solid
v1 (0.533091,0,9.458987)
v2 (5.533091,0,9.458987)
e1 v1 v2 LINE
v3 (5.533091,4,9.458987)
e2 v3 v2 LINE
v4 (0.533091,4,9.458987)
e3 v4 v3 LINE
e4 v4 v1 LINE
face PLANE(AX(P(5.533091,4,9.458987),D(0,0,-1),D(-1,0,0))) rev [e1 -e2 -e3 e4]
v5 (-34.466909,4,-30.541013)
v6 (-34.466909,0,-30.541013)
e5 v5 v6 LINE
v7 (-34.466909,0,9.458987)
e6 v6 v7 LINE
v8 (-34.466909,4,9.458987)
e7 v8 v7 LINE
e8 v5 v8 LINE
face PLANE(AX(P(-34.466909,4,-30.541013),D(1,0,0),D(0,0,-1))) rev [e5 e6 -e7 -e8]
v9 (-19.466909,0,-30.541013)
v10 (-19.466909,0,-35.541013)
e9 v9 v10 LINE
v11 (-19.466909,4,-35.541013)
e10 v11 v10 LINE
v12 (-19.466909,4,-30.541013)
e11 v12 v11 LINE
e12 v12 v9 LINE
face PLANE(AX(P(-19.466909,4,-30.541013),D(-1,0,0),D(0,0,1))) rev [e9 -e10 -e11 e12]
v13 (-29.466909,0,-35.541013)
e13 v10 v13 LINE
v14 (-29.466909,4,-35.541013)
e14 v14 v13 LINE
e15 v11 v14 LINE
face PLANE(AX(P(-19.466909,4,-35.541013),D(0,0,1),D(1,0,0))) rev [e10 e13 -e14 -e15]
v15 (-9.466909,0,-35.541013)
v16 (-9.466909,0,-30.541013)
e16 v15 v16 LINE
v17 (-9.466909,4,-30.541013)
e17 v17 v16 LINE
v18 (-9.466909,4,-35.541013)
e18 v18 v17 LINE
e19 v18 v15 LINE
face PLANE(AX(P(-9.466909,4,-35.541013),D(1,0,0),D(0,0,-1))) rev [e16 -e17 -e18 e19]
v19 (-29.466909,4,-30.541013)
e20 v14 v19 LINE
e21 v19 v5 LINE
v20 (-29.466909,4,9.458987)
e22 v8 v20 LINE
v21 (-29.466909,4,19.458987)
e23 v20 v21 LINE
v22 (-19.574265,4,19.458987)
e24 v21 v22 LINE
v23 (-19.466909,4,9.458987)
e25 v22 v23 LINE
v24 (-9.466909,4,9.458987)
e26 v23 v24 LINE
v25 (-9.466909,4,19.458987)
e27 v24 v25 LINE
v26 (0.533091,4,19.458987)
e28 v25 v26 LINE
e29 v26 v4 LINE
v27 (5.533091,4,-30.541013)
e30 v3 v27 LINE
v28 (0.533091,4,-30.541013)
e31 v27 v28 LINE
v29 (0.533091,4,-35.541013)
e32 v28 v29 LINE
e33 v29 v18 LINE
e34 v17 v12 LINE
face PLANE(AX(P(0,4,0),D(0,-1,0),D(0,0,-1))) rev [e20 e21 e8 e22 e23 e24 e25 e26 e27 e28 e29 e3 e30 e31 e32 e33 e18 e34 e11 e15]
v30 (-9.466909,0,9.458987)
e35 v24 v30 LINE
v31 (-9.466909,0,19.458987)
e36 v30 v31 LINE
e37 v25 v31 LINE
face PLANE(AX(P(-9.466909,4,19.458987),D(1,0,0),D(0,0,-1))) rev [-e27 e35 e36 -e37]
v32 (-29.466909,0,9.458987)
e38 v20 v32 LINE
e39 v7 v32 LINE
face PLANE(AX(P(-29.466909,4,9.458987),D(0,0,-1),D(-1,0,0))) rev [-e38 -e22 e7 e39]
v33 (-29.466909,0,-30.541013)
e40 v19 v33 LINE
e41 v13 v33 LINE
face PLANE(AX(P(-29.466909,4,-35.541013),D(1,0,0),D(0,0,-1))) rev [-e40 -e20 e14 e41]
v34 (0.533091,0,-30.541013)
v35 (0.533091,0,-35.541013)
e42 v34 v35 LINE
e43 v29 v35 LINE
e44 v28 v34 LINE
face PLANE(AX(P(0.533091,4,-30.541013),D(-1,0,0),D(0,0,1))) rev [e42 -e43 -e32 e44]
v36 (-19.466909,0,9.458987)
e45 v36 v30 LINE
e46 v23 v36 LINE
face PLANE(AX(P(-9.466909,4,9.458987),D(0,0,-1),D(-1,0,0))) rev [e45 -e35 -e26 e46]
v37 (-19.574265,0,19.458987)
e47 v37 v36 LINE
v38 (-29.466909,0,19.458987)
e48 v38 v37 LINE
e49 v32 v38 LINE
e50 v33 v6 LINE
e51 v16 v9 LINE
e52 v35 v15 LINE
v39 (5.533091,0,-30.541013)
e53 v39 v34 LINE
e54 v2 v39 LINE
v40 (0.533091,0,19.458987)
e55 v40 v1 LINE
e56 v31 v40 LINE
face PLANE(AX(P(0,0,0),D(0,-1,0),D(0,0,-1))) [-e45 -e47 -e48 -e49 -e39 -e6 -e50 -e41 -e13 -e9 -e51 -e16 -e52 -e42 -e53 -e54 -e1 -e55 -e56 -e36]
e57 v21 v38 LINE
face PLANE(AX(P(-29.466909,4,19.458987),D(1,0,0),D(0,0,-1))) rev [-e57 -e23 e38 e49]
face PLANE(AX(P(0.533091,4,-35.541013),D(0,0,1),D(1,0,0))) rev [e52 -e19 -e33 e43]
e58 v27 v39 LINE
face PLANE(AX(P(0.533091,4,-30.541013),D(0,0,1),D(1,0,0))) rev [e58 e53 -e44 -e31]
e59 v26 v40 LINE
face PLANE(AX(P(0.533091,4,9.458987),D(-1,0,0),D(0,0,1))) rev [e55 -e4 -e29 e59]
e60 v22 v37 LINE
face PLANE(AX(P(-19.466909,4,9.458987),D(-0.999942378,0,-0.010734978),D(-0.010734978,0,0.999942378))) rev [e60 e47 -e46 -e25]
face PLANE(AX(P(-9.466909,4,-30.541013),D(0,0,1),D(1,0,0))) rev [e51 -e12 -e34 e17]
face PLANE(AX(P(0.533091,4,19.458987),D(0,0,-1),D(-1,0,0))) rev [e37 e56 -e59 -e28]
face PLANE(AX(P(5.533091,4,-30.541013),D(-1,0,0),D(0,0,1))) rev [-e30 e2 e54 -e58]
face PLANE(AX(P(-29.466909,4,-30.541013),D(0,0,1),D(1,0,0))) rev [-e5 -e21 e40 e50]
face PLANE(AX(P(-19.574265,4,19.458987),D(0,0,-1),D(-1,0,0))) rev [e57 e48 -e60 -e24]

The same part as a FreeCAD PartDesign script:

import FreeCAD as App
import Part
import Sketcher

V = App.Vector


def add_polygon(sketch, points):
    """Adds a closed chain of lines whose ends are joined by coincident constraints."""
    first, n = sketch.GeometryCount, len(points)
    for a, b in zip(points, points[1:] + points[:1]):
        sketch.addGeometry(Part.LineSegment(App.Vector(*a, 0), App.Vector(*b, 0)), False)
    for i in range(n):
        sketch.addConstraint(Sketcher.Constraint("Coincident", first + i, 2, first + (i + 1) % n, 1))

doc = App.newDocument("Part")
body = doc.addObject("PartDesign::Body", "Body")

sketch1 = body.newObject("Sketcher::SketchObject", "Sketch")
sketch1.AttachmentSupport = (doc.getObject("XZ_Plane"), [""])
sketch1.MapMode = "FlatFace"
add_polygon(sketch1, [(-29.466909, -30.541013), (-34.466909, -30.541013), (-34.466909, 9.458987), (-29.466909, 9.458987), (-29.466909, 19.458987), (-19.574265, 19.458987), (-19.466909, 9.458987), (-9.466909, 9.458987), (-9.466909, 19.458987), (0.533091, 19.458987), (0.533091, 9.458987), (5.533091, 9.458987), (5.533091, -30.541013), (0.533091, -30.541013), (0.533091, -35.541013), (-9.466909, -35.541013), (-9.466909, -30.541013), (-19.466909, -30.541013), (-19.466909, -35.541013), (-29.466909, -35.541013)])
sketch1.addConstraint([
    Sketcher.Constraint("Horizontal", 0),
    Sketcher.Constraint("Vertical", 1),
    Sketcher.Constraint("Horizontal", 2),
    Sketcher.Constraint("Vertical", 3),
    Sketcher.Constraint("Horizontal", 4),
    Sketcher.Constraint("Horizontal", 6),
    Sketcher.Constraint("Vertical", 7),
    Sketcher.Constraint("Horizontal", 8),
    Sketcher.Constraint("Vertical", 9),
    Sketcher.Constraint("Horizontal", 10),
    Sketcher.Constraint("Vertical", 11),
    Sketcher.Constraint("Horizontal", 12),
    Sketcher.Constraint("Vertical", 13),
    Sketcher.Constraint("Horizontal", 14),
    Sketcher.Constraint("Vertical", 15),
    Sketcher.Constraint("Horizontal", 16),
    Sketcher.Constraint("Vertical", 17),
    Sketcher.Constraint("Horizontal", 18),
    Sketcher.Constraint("Vertical", 19),
    Sketcher.Constraint("Horizontal", 2, 2, 5, 2),
    Sketcher.Constraint("Horizontal", 4, 2, 7, 2),
    Sketcher.Constraint("Horizontal", 6, 2, 9, 2),
    Sketcher.Constraint("Horizontal", 0, 2, 11, 2),
    Sketcher.Constraint("Horizontal", 12, 2, 15, 2),
    Sketcher.Constraint("Horizontal", 14, 2, 17, 2),
    Sketcher.Constraint("Vertical", 9, 2, 12, 2),
    Sketcher.Constraint("Vertical", 7, 2, 14, 2),
    Sketcher.Constraint("Vertical", 5, 2, 16, 2),
    Sketcher.Constraint("Vertical", 3, 2, 18, 2),
    Sketcher.Constraint("Equal", 6, 8),
    Sketcher.Constraint("Equal", 2, 10),
    Sketcher.Constraint("Equal", 16, 18),
    Sketcher.Constraint("Equal", 18, 3),
    Sketcher.Constraint("Equal", 12, 13),
    Sketcher.Constraint("DistanceX", 0, 2, 0, 1, 5.0),
    Sketcher.Constraint("DistanceX", 6, 1, 6, 2, 10.0),
    Sketcher.Constraint("DistanceY", 1, 1, 1, 2, 40.0),
    Sketcher.Constraint("DistanceX", 4, 1, 4, 2, 9.892644),
    Sketcher.Constraint("DistanceX", 0, 2, -1, 1, 34.466909),
    Sketcher.Constraint("DistanceY", 0, 2, -1, 1, 30.541013),
])
pad1 = body.newObject("PartDesign::Pad", "Pad")
pad1.Profile = sketch1
pad1.Length = 4
pad1.Reversed = True

doc.recompute()
